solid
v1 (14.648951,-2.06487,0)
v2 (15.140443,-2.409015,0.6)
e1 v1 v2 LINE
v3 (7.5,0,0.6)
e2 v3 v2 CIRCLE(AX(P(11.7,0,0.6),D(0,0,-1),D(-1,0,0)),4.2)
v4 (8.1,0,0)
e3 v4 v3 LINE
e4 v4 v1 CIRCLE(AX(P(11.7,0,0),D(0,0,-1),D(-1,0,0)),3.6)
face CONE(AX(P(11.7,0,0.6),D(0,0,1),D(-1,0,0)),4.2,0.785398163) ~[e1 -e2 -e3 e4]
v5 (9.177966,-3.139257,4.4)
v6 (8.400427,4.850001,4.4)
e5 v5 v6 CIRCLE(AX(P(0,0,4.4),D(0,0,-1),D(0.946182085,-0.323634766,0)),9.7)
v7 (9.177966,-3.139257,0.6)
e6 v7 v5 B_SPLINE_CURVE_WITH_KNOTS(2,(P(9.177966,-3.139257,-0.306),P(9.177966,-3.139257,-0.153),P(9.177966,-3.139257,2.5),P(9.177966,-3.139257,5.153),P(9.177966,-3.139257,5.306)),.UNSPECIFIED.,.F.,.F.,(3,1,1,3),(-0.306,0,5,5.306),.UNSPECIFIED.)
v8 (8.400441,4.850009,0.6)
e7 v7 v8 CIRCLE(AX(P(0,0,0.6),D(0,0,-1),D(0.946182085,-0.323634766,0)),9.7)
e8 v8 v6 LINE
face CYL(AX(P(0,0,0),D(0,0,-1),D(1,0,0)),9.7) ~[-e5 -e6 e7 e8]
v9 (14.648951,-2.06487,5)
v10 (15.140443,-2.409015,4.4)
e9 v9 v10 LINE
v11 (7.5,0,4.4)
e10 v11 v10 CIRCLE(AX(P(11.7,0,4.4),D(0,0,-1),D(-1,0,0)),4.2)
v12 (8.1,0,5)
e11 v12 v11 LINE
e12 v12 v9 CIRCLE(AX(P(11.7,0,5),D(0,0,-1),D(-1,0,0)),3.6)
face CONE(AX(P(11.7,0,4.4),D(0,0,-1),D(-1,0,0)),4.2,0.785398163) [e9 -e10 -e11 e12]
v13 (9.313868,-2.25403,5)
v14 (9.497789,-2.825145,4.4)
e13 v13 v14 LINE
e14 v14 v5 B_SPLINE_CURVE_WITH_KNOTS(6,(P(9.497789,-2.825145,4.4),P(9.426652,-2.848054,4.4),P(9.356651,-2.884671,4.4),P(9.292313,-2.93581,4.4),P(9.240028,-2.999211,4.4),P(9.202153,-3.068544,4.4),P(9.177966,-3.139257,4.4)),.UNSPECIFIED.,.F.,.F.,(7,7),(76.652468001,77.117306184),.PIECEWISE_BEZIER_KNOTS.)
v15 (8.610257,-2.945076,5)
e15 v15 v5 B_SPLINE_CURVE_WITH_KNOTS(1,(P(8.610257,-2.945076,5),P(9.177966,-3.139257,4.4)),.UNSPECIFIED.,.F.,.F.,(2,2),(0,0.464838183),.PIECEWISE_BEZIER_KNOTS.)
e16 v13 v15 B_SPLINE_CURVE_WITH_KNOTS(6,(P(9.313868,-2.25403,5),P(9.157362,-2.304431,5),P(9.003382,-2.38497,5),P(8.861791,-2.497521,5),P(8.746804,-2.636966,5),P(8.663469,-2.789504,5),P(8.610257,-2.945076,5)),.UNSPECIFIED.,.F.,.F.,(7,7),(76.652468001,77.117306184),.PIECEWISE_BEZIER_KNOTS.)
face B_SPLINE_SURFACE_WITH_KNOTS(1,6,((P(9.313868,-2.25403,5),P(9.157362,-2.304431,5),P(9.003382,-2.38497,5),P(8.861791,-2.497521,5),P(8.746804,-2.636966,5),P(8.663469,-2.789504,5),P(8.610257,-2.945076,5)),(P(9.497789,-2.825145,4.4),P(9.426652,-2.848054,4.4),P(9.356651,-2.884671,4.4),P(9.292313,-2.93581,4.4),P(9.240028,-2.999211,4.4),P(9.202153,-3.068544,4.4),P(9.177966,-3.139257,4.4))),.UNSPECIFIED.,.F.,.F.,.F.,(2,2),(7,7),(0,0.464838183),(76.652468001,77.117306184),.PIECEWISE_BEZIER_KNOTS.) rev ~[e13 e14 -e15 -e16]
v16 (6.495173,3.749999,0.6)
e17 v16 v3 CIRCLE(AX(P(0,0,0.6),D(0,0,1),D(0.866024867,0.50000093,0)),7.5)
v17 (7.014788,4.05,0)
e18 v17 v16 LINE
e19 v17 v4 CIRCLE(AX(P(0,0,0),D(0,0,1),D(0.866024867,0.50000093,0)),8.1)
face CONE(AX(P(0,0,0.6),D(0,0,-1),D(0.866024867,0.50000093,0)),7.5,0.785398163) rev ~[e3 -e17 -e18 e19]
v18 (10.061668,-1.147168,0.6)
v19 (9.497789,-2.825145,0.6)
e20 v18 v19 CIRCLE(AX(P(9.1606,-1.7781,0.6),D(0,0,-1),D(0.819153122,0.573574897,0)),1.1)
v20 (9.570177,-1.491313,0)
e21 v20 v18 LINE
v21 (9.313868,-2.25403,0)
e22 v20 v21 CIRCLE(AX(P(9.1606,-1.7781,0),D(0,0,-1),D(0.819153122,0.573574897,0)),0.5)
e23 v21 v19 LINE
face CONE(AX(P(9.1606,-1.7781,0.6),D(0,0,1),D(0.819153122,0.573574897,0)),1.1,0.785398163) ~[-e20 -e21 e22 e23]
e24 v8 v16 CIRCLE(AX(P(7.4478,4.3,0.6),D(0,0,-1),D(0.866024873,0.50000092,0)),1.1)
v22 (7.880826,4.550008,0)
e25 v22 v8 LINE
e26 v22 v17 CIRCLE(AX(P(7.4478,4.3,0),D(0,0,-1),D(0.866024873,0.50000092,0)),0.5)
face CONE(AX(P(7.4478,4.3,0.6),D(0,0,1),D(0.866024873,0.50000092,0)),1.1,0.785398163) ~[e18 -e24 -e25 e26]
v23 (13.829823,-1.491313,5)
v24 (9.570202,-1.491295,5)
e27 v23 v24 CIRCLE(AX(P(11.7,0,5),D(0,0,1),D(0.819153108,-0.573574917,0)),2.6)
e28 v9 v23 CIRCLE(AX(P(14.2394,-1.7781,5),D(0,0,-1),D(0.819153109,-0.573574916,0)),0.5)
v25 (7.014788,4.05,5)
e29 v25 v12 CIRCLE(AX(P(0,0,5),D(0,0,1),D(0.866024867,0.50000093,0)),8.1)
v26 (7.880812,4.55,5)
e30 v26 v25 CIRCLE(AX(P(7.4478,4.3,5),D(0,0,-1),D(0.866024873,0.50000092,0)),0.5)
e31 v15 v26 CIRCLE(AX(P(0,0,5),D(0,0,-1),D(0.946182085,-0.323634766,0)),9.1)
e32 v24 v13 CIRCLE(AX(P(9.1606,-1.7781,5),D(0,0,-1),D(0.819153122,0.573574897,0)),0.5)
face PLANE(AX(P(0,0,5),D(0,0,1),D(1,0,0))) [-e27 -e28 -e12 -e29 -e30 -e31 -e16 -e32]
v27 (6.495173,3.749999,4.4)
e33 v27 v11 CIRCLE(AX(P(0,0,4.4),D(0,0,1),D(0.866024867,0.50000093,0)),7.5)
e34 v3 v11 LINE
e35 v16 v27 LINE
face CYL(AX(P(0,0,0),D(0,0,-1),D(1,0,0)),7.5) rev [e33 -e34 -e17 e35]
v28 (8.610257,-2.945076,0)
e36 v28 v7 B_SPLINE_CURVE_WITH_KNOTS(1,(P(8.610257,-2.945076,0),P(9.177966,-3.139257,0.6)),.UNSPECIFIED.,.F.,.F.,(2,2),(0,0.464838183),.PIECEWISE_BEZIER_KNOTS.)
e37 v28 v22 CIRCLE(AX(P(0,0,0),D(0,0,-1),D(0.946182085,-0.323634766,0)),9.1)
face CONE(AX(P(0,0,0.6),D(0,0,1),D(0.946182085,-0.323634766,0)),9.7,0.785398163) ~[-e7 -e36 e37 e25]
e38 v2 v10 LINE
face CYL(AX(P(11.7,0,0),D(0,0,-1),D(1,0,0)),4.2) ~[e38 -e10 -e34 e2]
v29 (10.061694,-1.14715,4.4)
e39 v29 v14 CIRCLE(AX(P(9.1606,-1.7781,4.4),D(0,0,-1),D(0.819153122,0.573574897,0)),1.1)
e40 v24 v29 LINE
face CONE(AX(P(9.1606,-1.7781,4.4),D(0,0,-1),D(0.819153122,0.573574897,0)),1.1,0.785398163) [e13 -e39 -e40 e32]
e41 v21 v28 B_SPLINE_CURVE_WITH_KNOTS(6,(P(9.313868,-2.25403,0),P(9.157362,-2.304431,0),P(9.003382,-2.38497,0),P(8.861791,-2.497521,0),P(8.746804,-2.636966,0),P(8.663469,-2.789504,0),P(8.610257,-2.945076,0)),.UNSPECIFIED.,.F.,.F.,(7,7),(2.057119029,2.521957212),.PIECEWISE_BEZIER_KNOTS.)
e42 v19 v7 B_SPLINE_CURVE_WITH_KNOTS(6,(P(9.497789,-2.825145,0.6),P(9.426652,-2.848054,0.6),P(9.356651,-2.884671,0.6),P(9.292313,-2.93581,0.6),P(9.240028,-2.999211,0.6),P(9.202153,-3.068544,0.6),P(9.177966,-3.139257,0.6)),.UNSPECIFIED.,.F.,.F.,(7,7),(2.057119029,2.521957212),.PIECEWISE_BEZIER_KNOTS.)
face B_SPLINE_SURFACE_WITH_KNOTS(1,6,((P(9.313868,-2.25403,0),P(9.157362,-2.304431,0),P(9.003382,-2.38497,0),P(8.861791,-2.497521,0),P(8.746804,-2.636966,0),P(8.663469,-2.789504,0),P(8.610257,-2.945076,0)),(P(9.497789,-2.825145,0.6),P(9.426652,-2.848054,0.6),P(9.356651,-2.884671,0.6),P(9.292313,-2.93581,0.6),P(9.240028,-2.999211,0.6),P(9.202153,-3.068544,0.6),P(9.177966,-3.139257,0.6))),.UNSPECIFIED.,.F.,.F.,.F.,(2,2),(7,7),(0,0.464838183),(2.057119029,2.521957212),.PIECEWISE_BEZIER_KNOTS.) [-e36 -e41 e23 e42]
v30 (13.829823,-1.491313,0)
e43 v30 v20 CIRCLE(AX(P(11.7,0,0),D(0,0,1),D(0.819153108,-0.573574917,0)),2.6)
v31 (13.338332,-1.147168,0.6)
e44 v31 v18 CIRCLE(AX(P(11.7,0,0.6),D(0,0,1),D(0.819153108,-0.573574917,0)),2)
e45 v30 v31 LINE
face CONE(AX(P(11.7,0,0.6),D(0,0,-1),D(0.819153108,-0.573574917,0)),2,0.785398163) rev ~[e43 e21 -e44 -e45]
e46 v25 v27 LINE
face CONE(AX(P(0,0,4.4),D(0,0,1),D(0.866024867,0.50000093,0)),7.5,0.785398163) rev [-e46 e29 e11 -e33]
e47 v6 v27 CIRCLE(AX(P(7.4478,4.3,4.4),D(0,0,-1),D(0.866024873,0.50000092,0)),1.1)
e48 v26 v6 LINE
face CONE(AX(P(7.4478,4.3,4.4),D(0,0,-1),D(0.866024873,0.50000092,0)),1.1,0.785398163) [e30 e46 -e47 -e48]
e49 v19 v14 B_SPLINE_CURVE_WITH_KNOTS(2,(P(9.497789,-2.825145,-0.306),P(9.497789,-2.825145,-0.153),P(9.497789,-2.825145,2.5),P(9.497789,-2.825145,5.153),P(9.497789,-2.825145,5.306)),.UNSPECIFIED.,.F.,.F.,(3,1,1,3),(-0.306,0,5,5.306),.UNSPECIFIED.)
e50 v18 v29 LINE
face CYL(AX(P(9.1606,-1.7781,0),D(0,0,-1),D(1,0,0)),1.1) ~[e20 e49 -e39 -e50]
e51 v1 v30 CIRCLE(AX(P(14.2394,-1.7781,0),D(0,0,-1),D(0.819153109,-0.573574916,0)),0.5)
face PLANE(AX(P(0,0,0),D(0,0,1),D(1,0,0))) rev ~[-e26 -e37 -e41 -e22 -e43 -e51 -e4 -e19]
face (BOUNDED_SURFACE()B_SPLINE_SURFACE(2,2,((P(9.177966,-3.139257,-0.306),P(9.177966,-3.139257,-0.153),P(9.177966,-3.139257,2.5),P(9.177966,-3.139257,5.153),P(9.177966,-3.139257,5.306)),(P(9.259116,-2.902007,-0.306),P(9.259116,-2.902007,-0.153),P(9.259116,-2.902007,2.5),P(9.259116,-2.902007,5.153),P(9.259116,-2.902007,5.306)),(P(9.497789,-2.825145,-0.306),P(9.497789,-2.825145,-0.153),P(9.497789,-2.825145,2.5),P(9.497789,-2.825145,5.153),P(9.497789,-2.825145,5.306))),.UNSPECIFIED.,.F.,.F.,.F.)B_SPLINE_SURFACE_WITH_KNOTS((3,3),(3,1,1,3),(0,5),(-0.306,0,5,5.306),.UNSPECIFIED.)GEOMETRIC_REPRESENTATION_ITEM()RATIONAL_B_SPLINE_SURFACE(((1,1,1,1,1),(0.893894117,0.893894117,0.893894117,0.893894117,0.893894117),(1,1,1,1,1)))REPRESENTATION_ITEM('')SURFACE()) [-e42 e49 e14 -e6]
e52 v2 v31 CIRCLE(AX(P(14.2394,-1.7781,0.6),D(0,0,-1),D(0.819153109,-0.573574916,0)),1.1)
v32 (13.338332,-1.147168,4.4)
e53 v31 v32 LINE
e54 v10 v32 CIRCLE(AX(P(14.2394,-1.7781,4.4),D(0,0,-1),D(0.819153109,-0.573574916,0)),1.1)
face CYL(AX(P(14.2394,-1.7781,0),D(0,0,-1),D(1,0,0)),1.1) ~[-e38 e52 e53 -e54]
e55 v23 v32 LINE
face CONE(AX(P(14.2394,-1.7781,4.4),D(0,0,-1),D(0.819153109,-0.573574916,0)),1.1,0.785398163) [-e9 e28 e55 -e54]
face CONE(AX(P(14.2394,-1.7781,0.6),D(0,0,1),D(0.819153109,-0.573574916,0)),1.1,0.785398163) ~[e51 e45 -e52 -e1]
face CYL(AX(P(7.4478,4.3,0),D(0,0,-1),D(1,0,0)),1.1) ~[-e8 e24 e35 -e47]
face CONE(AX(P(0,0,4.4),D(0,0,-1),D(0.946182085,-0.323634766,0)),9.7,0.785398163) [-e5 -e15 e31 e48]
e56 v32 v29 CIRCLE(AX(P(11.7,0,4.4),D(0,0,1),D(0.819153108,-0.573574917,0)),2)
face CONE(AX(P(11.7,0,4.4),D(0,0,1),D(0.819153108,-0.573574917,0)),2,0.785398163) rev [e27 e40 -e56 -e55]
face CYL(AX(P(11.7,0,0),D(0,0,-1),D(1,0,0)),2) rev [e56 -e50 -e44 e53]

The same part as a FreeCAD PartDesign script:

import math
import FreeCAD as App
import Part
import Sketcher
Q = App.Units.Quantity


def edges_at(feature, points):
    """Names of the edges that pass closest to the given points."""
    edges = feature.Shape.Edges
    near = lambda p: min(range(len(edges)), key=lambda i: edges[i].distToShape(Part.Vertex(*p))[0])
    return sorted({f"Edge{near(p) + 1}" for p in points})

doc = App.newDocument("Part")
params = doc.addObject("Spreadsheet::Sheet", "Params")
for row, (alias, value) in enumerate([
    ("sketch1_radius", "2 mm"),
    ("sketch1_radius2", "1.1 mm"),
    ("sketch1_radius3", "7.5 mm"),
    ("pad1_length", "5 mm"),
    ("fillet_radius", "0.5 mm"),
    ("chamfer_size", "0.6 mm"),
], start=1):
    params.set(f"A{row}", alias)
    params.set(f"B{row}", "=" + value)
    params.setAlias(f"B{row}", alias)

body = doc.addObject("PartDesign::Body", "Body")

# Sketch on XY plane
sketch1 = doc.addObject("Sketcher::SketchObject", "Sketch")
body.addObject(sketch1)
sketch1.AttachmentSupport = (doc.XY_Plane, [""])
sketch1.MapMode = "FlatFace"
sketch1.addGeometry([
    Part.ArcOfCircle(Part.Circle(App.Vector(0, 0, 0), App.Vector(0, 0, 1), 9.7), math.radians(30), math.radians(343)),  # 0
    Part.ArcOfCircle(Part.Circle(App.Vector(9.2, -1.8, 0), App.Vector(0, 0, 1), 1.1), math.radians(-85), math.radians(35)),  # 1
    Part.ArcOfCircle(Part.Circle(App.Vector(11.7, 0, 0), App.Vector(0, 0, 1), 2), math.radians(-35), math.radians(215)),  # 2
    Part.ArcOfCircle(Part.Circle(App.Vector(14.2, -1.8, 0), App.Vector(0, 0, 1), 1.1), math.radians(145), math.radians(325)),  # 3
    Part.ArcOfCircle(Part.Circle(App.Vector(11.7, 0, 0), App.Vector(0, 0, 1), 4.2), math.radians(-35), math.radians(180)),  # 4
    Part.ArcOfCircle(Part.Circle(App.Vector(0, 0, 0), App.Vector(0, 0, 1), 7.5), math.radians(30), math.radians(360)),  # 5
    Part.ArcOfCircle(Part.Circle(App.Vector(7.4, 4.3, 0), App.Vector(0, 0, 1), 1.1), math.radians(-150), math.radians(30)),  # 6
], False)
sketch1.addConstraint([
    Sketcher.Constraint("Coincident", 0, 2, 1, 1),
    Sketcher.Constraint("Tangent", 1, 2, 2, 2),
    Sketcher.Constraint("Tangent", 2, 1, 3, 1),
    Sketcher.Constraint("Tangent", 3, 2, 4, 1),
    Sketcher.Constraint("Tangent", 4, 2, 5, 2),
    Sketcher.Constraint("Tangent", 5, 1, 6, 1),
    Sketcher.Constraint("Tangent", 6, 2, 0, 1),
    Sketcher.Constraint("Coincident", 0, 3, -1, 1),
    Sketcher.Constraint("Coincident", 5, 3, -1, 1),
    Sketcher.Constraint("Coincident", 4, 3, 2, 3),
    Sketcher.Constraint("Equal", 1, 3),
    Sketcher.Constraint("Equal", 3, 6),
    Sketcher.Constraint("PointOnObject", 2, 3, -1),
    Sketcher.Constraint("Horizontal", 1, 3, 3, 3),
    Sketcher.Constraint("Radius", 2, Q("2 mm")),
    Sketcher.Constraint("Radius", 1, Q("1.1 mm")),
    Sketcher.Constraint("Radius", 5, Q("7.5 mm")),
    Sketcher.Constraint("DistanceY", -1, 1, 6, 3, Q("4.3 mm")),
    Sketcher.Constraint("DistanceX", 1, 3, 3, 3, Q("5.0788 mm")),
])
sketch1.setExpression("Constraints[14]", "Params.sketch1_radius")
sketch1.setExpression("Constraints[15]", "Params.sketch1_radius2")
sketch1.setExpression("Constraints[16]", "Params.sketch1_radius3")
pad1 = doc.addObject("PartDesign::Pad", "Pad")
body.addObject(pad1)
pad1.Profile = sketch1
pad1.setExpression("Length", "Params.pad1_length")
doc.recompute()

fillet = doc.addObject("PartDesign::Fillet", "Fillet")
body.addObject(fillet)
fillet.Base = (pad1, edges_at(pad1, [(9.265, -2.873, 2.5)]))
fillet.setExpression("Radius", "Params.fillet_radius")
doc.recompute()

chamfer = doc.addObject("PartDesign::Chamfer", "Chamfer")
body.addObject(chamfer)
chamfer.Base = (fillet, edges_at(fillet, [
    (7.998, 3.347, 5),
    (-9.654, -0.94, 5),
    (9.301, -2.944, 5),
    (10.203, -2.128, 5),
    (11.7, 2, 5),
    (13.608, -2.679, 5),
    (12.963, 4.006, 5),
    (-7.244, -1.941, 5),
    (10.203, -2.128, 0),
    (11.7, 2, 0),
    (13.608, -2.679, 0),
    (12.963, 4.006, 0),
    (-7.244, -1.941, 0),
    (7.998, 3.347, 0),
    (-9.654, -0.94, 0),
    (9.301, -2.944, 0),
]))
chamfer.setExpression("Size", "Params.chamfer_size")

doc.recompute()
